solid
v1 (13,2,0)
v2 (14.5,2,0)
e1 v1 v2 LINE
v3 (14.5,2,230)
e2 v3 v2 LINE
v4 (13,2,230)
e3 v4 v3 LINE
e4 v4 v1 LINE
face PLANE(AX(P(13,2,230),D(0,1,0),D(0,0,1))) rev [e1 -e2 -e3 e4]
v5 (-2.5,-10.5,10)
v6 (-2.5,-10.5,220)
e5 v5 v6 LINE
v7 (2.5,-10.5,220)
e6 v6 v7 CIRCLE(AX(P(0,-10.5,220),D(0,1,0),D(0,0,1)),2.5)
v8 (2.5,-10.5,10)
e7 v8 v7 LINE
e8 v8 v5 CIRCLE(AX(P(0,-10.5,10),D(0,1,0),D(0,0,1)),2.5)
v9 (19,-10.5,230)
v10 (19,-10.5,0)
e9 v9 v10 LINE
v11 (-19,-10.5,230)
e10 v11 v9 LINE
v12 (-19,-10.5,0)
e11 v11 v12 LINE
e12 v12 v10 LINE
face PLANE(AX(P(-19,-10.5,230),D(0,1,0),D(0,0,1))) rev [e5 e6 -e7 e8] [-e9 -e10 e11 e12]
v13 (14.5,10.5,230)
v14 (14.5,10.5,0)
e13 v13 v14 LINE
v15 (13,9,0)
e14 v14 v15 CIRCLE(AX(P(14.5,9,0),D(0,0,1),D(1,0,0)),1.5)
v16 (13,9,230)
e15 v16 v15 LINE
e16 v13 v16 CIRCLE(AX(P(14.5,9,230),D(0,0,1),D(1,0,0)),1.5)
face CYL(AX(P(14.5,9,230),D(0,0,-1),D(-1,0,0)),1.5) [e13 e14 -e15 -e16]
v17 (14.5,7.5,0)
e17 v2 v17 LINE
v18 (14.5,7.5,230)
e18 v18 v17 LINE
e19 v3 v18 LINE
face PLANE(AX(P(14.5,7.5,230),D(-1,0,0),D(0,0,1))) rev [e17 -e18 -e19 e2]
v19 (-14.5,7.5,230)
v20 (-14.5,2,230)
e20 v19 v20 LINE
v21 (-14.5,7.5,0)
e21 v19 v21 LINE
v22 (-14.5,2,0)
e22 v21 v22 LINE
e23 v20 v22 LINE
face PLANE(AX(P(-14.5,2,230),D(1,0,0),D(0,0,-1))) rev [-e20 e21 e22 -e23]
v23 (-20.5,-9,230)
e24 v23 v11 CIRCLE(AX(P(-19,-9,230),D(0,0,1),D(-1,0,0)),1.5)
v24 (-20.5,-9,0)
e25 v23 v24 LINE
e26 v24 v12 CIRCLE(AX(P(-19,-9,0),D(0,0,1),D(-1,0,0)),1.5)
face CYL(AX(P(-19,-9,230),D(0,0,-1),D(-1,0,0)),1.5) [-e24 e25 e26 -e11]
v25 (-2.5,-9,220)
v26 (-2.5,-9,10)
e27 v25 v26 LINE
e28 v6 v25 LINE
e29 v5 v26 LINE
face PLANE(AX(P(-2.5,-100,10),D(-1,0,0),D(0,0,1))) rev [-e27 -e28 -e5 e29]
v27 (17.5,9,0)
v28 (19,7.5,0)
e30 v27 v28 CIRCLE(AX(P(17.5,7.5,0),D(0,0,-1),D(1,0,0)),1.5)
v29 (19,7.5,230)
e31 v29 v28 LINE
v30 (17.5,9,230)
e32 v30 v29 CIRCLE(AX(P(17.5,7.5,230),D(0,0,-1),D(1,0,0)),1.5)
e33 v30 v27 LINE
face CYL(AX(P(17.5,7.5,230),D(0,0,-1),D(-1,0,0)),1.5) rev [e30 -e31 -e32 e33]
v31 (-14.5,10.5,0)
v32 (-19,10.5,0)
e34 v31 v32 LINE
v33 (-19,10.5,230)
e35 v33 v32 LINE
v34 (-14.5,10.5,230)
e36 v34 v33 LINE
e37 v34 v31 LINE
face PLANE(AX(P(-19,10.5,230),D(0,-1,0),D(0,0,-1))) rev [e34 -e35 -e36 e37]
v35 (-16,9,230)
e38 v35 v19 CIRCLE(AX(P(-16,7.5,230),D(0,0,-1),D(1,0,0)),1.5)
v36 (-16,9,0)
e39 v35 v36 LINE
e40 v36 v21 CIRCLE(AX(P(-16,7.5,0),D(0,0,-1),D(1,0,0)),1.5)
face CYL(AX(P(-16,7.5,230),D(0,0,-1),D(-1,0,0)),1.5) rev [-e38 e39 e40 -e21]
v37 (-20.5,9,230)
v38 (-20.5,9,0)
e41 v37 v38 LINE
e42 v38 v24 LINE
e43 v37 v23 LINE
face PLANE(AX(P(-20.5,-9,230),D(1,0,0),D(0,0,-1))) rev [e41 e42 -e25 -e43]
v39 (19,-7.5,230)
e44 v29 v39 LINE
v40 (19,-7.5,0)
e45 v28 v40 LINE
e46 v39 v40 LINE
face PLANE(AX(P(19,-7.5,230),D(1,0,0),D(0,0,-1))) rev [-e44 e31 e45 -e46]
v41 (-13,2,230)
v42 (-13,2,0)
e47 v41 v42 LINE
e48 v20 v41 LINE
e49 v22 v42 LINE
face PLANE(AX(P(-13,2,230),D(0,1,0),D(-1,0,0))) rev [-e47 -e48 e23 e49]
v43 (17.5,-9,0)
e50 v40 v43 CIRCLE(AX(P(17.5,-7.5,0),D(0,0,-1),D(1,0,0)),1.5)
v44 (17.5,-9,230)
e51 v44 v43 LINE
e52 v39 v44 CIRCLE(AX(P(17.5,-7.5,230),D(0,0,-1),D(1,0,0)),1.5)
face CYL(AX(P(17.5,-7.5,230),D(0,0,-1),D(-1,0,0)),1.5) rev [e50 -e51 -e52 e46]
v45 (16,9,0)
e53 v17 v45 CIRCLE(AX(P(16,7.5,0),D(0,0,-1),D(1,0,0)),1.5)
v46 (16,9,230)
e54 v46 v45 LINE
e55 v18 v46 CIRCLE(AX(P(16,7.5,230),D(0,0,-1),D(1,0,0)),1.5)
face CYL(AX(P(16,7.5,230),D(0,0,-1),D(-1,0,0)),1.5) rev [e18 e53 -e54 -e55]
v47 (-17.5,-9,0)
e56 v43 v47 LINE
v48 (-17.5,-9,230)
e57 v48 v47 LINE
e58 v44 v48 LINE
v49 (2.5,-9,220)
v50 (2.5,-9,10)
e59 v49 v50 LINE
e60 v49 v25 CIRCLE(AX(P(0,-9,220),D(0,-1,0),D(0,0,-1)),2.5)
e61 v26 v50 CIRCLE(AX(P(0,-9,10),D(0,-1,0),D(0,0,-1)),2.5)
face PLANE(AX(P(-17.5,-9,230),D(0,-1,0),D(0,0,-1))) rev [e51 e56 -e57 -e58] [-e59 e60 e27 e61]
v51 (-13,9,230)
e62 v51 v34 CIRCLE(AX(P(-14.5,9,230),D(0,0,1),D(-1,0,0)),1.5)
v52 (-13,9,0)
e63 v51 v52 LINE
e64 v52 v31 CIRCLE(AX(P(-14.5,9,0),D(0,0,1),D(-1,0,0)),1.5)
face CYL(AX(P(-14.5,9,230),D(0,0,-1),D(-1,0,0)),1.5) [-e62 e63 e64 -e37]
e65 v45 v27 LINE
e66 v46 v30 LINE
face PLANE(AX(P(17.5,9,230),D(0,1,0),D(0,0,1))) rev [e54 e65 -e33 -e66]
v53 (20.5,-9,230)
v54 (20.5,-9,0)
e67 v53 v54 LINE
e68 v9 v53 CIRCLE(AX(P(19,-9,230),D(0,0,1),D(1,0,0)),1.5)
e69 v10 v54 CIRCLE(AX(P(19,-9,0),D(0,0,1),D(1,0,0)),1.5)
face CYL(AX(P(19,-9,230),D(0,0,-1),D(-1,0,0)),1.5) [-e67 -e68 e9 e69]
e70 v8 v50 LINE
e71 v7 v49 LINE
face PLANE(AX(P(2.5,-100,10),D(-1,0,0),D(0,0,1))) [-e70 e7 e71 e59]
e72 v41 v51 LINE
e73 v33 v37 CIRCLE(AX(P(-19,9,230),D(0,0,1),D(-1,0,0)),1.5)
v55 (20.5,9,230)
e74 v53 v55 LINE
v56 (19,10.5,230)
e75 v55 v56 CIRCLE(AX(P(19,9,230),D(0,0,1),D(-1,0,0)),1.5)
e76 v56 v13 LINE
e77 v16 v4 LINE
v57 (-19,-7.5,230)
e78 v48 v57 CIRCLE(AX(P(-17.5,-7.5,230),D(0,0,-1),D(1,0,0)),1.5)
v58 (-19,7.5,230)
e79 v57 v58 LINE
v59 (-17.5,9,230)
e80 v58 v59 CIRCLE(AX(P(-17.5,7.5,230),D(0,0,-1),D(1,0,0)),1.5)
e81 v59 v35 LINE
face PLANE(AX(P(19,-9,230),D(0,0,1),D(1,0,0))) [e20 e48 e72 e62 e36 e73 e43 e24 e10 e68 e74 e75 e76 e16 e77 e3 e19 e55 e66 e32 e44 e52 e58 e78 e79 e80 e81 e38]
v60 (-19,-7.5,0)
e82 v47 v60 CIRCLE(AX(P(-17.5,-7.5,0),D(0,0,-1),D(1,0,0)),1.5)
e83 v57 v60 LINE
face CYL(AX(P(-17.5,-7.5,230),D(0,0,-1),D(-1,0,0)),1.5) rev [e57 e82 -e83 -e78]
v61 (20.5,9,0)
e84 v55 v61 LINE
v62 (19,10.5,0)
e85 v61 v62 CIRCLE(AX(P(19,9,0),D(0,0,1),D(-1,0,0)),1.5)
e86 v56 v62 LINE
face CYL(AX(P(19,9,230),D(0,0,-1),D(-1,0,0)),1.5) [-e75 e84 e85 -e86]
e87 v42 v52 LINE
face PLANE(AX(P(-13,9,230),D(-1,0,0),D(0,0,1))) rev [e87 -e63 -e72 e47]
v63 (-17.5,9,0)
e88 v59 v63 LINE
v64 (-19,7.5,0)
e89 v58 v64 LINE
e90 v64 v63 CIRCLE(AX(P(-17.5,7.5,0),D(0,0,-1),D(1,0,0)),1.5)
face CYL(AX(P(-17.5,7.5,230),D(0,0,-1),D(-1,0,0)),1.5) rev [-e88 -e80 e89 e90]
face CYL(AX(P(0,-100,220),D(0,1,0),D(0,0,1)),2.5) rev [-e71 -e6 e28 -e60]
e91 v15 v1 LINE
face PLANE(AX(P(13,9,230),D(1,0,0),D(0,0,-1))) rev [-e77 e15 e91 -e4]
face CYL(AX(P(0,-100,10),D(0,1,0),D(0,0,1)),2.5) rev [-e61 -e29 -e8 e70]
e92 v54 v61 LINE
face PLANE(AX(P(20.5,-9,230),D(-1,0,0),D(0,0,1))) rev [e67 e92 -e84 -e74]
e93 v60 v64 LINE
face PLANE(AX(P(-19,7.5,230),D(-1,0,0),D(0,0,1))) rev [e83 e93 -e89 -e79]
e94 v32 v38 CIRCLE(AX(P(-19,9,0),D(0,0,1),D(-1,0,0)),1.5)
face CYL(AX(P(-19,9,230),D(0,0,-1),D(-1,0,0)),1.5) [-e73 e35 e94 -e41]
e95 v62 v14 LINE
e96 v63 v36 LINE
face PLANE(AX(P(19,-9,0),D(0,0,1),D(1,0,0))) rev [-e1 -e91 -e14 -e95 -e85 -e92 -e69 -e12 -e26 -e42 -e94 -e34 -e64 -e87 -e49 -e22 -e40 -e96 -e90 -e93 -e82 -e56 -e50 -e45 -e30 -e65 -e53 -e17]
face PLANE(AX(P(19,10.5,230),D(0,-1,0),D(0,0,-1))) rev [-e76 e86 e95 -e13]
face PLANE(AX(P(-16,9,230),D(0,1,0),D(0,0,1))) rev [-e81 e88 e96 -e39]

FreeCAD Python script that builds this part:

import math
import FreeCAD as App
import Part
import Sketcher
from FreeCAD import Vector

doc = App.newDocument("Part")
body = doc.addObject("PartDesign::Body", "Body")

# Sketch on XY plane
sketch1 = body.newObject("Sketcher::SketchObject", "Sketch")
sketch1.AttachmentSupport = (doc.getObject("XY_Plane"), [""])
sketch1.MapMode = "FlatFace"
sketch1.addGeometry([
    Part.LineSegment(Vector(-14.5, 10.5, 0), Vector(-19, 10.5, 0)),  # 0
    Part.ArcOfCircle(Part.Circle(Vector(-19, 9, 0), Vector(0, 0, 1), 1.5), math.radians(90), math.radians(180)),  # 1
    Part.LineSegment(Vector(-20.5, 9, 0), Vector(-20.5, -9, 0)),  # 2
    Part.ArcOfCircle(Part.Circle(Vector(-19, -9, 0), Vector(0, 0, 1), 1.5), math.radians(180), math.radians(270)),  # 3
    Part.LineSegment(Vector(-19, -10.5, 0), Vector(19, -10.5, 0)),  # 4
    Part.ArcOfCircle(Part.Circle(Vector(19, -9, 0), Vector(0, 0, 1), 1.5), math.radians(-90), math.radians(0)),  # 5
    Part.LineSegment(Vector(20.5, -9, 0), Vector(20.5, 9, 0)),  # 6
    Part.ArcOfCircle(Part.Circle(Vector(19, 9, 0), Vector(0, 0, 1), 1.5), math.radians(0), math.radians(90)),  # 7
    Part.LineSegment(Vector(19, 10.5, 0), Vector(14.5, 10.5, 0)),  # 8
    Part.ArcOfCircle(Part.Circle(Vector(14.5, 9, 0), Vector(0, 0, 1), 1.5), math.radians(90), math.radians(180)),  # 9
    Part.LineSegment(Vector(13, 9, 0), Vector(13, 2, 0)),  # 10
    Part.LineSegment(Vector(13, 2, 0), Vector(14.5, 2, 0)),  # 11
    Part.LineSegment(Vector(14.5, 2, 0), Vector(14.5, 7.5, 0)),  # 12
    Part.ArcOfCircle(Part.Circle(Vector(16, 7.5, 0), Vector(0, 0, 1), 1.5), math.radians(90), math.radians(180)),  # 13
    Part.LineSegment(Vector(16, 9, 0), Vector(17.5, 9, 0)),  # 14
    Part.ArcOfCircle(Part.Circle(Vector(17.5, 7.5, 0), Vector(0, 0, 1), 1.5), math.radians(0), math.radians(90)),  # 15
    Part.LineSegment(Vector(19, 7.5, 0), Vector(19, -7.5, 0)),  # 16
    Part.ArcOfCircle(Part.Circle(Vector(17.5, -7.5, 0), Vector(0, 0, 1), 1.5), math.radians(-90), math.radians(0)),  # 17
    Part.LineSegment(Vector(17.5, -9, 0), Vector(-17.5, -9, 0)),  # 18
    Part.ArcOfCircle(Part.Circle(Vector(-17.5, -7.5, 0), Vector(0, 0, 1), 1.5), math.radians(180), math.radians(270)),  # 19
    Part.LineSegment(Vector(-19, -7.5, 0), Vector(-19, 7.5, 0)),  # 20
    Part.ArcOfCircle(Part.Circle(Vector(-17.5, 7.5, 0), Vector(0, 0, 1), 1.5), math.radians(90), math.radians(180)),  # 21
    Part.LineSegment(Vector(-17.5, 9, 0), Vector(-16, 9, 0)),  # 22
    Part.ArcOfCircle(Part.Circle(Vector(-16, 7.5, 0), Vector(0, 0, 1), 1.5), math.radians(0), math.radians(90)),  # 23
    Part.LineSegment(Vector(-14.5, 7.5, 0), Vector(-14.5, 2, 0)),  # 24
    Part.LineSegment(Vector(-14.5, 2, 0), Vector(-13, 2, 0)),  # 25
    Part.LineSegment(Vector(-13, 2, 0), Vector(-13, 9, 0)),  # 26
    Part.ArcOfCircle(Part.Circle(Vector(-14.5, 9, 0), Vector(0, 0, 1), 1.5), math.radians(0), math.radians(90)),  # 27
], False)
sketch1.addConstraint([
    Sketcher.Constraint("Tangent", 0, 2, 1, 1),
    Sketcher.Constraint("Tangent", 1, 2, 2, 1),
    Sketcher.Constraint("Tangent", 2, 2, 3, 1),
    Sketcher.Constraint("Tangent", 3, 2, 4, 1),
    Sketcher.Constraint("Tangent", 4, 2, 5, 1),
    Sketcher.Constraint("Tangent", 5, 2, 6, 1),
    Sketcher.Constraint("Tangent", 6, 2, 7, 1),
    Sketcher.Constraint("Tangent", 7, 2, 8, 1),
    Sketcher.Constraint("Tangent", 8, 2, 9, 1),
    Sketcher.Constraint("Tangent", 9, 2, 10, 1),
    Sketcher.Constraint("Coincident", 10, 2, 11, 1),
    Sketcher.Constraint("Coincident", 11, 2, 12, 1),
    Sketcher.Constraint("Tangent", 12, 2, 13, 2),
    Sketcher.Constraint("Tangent", 13, 1, 14, 1),
    Sketcher.Constraint("Tangent", 14, 2, 15, 2),
    Sketcher.Constraint("Tangent", 15, 1, 16, 1),
    Sketcher.Constraint("Tangent", 16, 2, 17, 2),
    Sketcher.Constraint("Tangent", 17, 1, 18, 1),
    Sketcher.Constraint("Tangent", 18, 2, 19, 2),
    Sketcher.Constraint("Tangent", 19, 1, 20, 1),
    Sketcher.Constraint("Tangent", 20, 2, 21, 2),
    Sketcher.Constraint("Tangent", 21, 1, 22, 1),
    Sketcher.Constraint("Tangent", 22, 2, 23, 2),
    Sketcher.Constraint("Tangent", 23, 1, 24, 1),
    Sketcher.Constraint("Coincident", 24, 2, 25, 1),
    Sketcher.Constraint("Coincident", 25, 2, 26, 1),
    Sketcher.Constraint("Tangent", 26, 2, 27, 1),
    Sketcher.Constraint("Tangent", 27, 2, 0, 1),
    Sketcher.Constraint("Horizontal", 0),
    Sketcher.Constraint("Vertical", 2),
    Sketcher.Constraint("Horizontal", 4),
    Sketcher.Constraint("Vertical", 6),
    Sketcher.Constraint("Horizontal", 8),
    Sketcher.Constraint("Vertical", 10),
    Sketcher.Constraint("Horizontal", 11),
    Sketcher.Constraint("Vertical", 12),
    Sketcher.Constraint("Horizontal", 14),
    Sketcher.Constraint("Vertical", 16),
    Sketcher.Constraint("Horizontal", 18),
    Sketcher.Constraint("Vertical", 20),
    Sketcher.Constraint("Horizontal", 22),
    Sketcher.Constraint("Vertical", 24),
    Sketcher.Constraint("Horizontal", 25),
    Sketcher.Constraint("Vertical", 26),
    Sketcher.Constraint("Equal", 1, 3),
    Sketcher.Constraint("Equal", 3, 5),
    Sketcher.Constraint("Equal", 5, 7),
    Sketcher.Constraint("Equal", 7, 9),
    Sketcher.Constraint("Equal", 9, 13),
    Sketcher.Constraint("Equal", 13, 15),
    Sketcher.Constraint("Equal", 15, 17),
    Sketcher.Constraint("Equal", 17, 19),
    Sketcher.Constraint("Equal", 19, 21),
    Sketcher.Constraint("Equal", 21, 23),
    Sketcher.Constraint("Equal", 23, 27),
    Sketcher.Constraint("Symmetric", 1, 3, 5, 3, -1, 1),
    Sketcher.Constraint("Symmetric", 15, 3, 19, 3, -1, 1),
    Sketcher.Constraint("Symmetric", 13, 3, 23, 3, -2),
    Sketcher.Constraint("Symmetric", 9, 3, 27, 3, -2),
    Sketcher.Constraint("Horizontal", 9, 2, 13, 1),
    Sketcher.Constraint("Horizontal", 11, 2, 24, 2),
    Sketcher.Constraint("Vertical", 8, 2, 11, 2),
    Sketcher.Constraint("Vertical", 7, 2, 15, 1),
    Sketcher.Constraint("Equal", 11, 14),
    Sketcher.Constraint("Radius", 1, 1.5),
    Sketcher.Constraint("DistanceX", 4, 1, 4, 2, 38.0),
    Sketcher.Constraint("DistanceY", 2, 2, 2, 1, 18.0),
    Sketcher.Constraint("DistanceY", 10, 2, 10, 1, 7.0),
])
pad1 = body.newObject("PartDesign::Pad", "Pad")
pad1.Profile = sketch1
pad1.Length = 230

# Sketch on XZ plane
sketch2 = body.newObject("Sketcher::SketchObject", "Sketch001")
sketch2.AttachmentSupport = (doc.getObject("XZ_Plane"), [""])
sketch2.MapMode = "FlatFace"
sketch2.addGeometry([
    Part.LineSegment(Vector(2.5, 220, 0), Vector(2.5, 10, 0)),
    Part.ArcOfCircle(Part.Circle(Vector(0, 10, 0), Vector(0, 0, 1), 2.5), math.radians(180), math.radians(360)),
    Part.LineSegment(Vector(-2.5, 10, 0), Vector(-2.5, 220, 0)),
    Part.ArcOfCircle(Part.Circle(Vector(0, 220, 0), Vector(0, 0, 1), 2.5), math.radians(0), math.radians(180)),
], False)
sketch2.addConstraint([
    Sketcher.Constraint("Tangent", 0, 2, 1, 2),
    Sketcher.Constraint("Tangent", 1, 1, 2, 1),
    Sketcher.Constraint("Tangent", 2, 2, 3, 2),
    Sketcher.Constraint("Tangent", 3, 1, 0, 1),
    Sketcher.Constraint("Vertical", 0),
    Sketcher.Constraint("Vertical", 2),
    Sketcher.Constraint("PointOnObject", 1, 3, -2),
    Sketcher.Constraint("Radius", 1, 2.5),
    Sketcher.Constraint("DistanceY", 0, 2, 0, 1, 210.0),
    Sketcher.Constraint("DistanceY", -1, 1, 1, 3, 10.0),
])
pocket1 = body.newObject("PartDesign::Pocket", "Pocket")
pocket1.Profile = sketch2
pocket1.Length = 100
pocket1.Reversed = True

doc.recompute()
